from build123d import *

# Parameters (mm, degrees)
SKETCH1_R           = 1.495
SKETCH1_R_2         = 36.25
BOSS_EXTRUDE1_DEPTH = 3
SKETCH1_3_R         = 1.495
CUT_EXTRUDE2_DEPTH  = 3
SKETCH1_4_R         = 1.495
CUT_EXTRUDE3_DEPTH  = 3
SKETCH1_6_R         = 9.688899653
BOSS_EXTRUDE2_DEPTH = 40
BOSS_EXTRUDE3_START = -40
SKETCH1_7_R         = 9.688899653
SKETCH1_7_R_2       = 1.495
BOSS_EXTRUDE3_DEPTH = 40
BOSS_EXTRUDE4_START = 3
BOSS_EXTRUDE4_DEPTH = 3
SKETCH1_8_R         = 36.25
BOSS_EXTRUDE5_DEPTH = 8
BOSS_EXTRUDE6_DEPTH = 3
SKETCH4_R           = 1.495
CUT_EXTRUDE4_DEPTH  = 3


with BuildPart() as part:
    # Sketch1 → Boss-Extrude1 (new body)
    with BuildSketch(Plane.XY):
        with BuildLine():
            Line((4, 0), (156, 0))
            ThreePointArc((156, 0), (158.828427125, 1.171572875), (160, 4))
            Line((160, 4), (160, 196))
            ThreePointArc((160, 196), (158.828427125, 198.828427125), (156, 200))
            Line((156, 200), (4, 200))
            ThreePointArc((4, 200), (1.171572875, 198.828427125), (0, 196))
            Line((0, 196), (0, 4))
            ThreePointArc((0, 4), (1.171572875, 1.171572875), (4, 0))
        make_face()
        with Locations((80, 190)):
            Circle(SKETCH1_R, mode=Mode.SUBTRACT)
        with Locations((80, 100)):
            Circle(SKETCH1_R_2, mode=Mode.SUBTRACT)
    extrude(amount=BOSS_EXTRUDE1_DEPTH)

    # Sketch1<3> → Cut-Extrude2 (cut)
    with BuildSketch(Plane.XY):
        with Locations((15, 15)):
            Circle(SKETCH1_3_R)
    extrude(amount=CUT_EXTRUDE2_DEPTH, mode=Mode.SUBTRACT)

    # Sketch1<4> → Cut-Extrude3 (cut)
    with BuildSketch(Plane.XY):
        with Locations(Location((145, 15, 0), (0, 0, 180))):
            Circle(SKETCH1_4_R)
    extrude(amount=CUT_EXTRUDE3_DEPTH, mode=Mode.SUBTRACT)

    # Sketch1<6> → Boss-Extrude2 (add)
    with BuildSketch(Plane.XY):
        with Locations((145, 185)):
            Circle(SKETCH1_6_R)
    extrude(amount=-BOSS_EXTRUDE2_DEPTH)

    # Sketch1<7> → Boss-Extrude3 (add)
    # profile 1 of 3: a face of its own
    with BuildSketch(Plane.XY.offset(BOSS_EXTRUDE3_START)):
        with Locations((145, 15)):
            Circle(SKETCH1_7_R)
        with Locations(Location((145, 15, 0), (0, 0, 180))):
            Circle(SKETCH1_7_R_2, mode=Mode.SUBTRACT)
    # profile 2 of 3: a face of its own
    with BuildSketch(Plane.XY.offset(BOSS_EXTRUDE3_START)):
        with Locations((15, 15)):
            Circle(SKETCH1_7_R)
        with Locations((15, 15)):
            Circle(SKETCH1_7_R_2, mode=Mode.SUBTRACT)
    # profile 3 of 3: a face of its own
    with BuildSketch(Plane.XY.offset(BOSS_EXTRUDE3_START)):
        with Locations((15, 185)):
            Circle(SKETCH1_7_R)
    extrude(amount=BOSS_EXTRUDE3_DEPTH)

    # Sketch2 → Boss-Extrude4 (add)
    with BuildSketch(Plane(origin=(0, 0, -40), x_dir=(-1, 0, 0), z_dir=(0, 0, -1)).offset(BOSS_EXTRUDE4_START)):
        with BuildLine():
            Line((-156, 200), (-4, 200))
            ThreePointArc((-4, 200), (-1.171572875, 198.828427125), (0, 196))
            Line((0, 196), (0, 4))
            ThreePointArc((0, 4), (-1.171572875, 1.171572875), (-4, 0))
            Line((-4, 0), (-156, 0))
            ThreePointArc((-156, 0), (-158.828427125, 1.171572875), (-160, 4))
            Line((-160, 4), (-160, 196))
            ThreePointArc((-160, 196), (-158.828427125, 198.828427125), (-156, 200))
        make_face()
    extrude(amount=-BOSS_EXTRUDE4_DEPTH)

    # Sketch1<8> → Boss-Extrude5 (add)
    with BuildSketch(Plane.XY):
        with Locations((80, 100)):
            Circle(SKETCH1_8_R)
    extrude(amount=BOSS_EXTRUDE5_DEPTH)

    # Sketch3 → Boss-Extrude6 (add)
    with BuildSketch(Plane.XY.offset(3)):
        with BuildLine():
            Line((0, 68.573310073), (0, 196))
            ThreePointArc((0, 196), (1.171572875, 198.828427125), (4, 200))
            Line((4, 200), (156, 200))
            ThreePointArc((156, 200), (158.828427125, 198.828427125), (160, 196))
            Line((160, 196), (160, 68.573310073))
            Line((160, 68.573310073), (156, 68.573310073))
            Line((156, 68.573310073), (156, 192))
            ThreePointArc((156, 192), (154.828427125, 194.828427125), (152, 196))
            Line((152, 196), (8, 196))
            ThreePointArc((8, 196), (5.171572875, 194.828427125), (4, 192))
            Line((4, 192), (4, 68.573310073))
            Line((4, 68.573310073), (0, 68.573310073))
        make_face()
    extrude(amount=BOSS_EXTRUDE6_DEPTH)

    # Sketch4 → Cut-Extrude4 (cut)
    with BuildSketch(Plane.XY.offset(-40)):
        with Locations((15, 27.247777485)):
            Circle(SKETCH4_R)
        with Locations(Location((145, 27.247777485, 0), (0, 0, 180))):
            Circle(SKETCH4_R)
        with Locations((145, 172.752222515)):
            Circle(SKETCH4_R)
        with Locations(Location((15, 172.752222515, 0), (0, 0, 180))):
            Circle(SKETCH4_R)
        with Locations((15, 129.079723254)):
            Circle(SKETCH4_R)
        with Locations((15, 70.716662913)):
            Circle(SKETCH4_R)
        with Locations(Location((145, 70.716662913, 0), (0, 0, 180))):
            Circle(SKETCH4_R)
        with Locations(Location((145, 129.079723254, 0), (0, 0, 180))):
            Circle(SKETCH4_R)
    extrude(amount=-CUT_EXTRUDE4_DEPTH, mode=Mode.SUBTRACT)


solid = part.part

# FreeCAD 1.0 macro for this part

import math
import FreeCAD as App
import Part
import Sketcher

V = App.Vector
Q = App.Units.Quantity

doc = App.newDocument("Part")
body = doc.addObject("PartDesign::Body", "Body")

sketch1 = body.newObject("Sketcher::SketchObject", "Sketch")
sketch1.AttachmentSupport = (doc.getObject("XY_Plane"), [""])
sketch1.MapMode = "FlatFace"
sketch1.addGeometry([
    Part.LineSegment(V(4, 0, 0), V(156, 0, 0)),
    Part.ArcOfCircle(Part.Circle(V(156, 4, 0), V(0, 0, 1), 4), math.radians(-90), math.radians(0)),
    Part.LineSegment(V(160, 4, 0), V(160, 196, 0)),
    Part.ArcOfCircle(Part.Circle(V(156, 196, 0), V(0, 0, 1), 4), math.radians(0), math.radians(90)),
    Part.LineSegment(V(156, 200, 0), V(4, 200, 0)),
    Part.ArcOfCircle(Part.Circle(V(4, 196, 0), V(0, 0, 1), 4), math.radians(90), math.radians(180)),
    Part.LineSegment(V(0, 196, 0), V(0, 4, 0)),
    Part.ArcOfCircle(Part.Circle(V(4, 4, 0), V(0, 0, 1), 4), math.radians(180), math.radians(270)),
    Part.Circle(V(80, 100, 0), V(0, 0, 1), 36.2),
    Part.Circle(V(80, 190, 0), V(0, 0, 1), 1.5),
], False)
sketch1.addConstraint([
    Sketcher.Constraint("Tangent", 0, 2, 1, 1),
    Sketcher.Constraint("Tangent", 1, 2, 2, 1),
    Sketcher.Constraint("Tangent", 2, 2, 3, 1),
    Sketcher.Constraint("Tangent", 3, 2, 4, 1),
    Sketcher.Constraint("Tangent", 4, 2, 5, 1),
    Sketcher.Constraint("Tangent", 5, 2, 6, 1),
    Sketcher.Constraint("Tangent", 6, 2, 7, 1),
    Sketcher.Constraint("Tangent", 7, 2, 0, 1),
    Sketcher.Constraint("Horizontal", 0),
    Sketcher.Constraint("Vertical", 2),
    Sketcher.Constraint("Horizontal", 4),
    Sketcher.Constraint("Vertical", 6),
    Sketcher.Constraint("Equal", 1, 3),
    Sketcher.Constraint("Equal", 3, 5),
    Sketcher.Constraint("Equal", 5, 7),
    Sketcher.Constraint("PointOnObject", 0, 2, -1),
    Sketcher.Constraint("PointOnObject", 5, 2, -2),
    Sketcher.Constraint("Vertical", 8, 3, 9, 3),
    Sketcher.Constraint("Radius", 1, Q("4 mm")),
    Sketcher.Constraint("Diameter", 8, Q("72.5 mm")),
    Sketcher.Constraint("Diameter", 9, Q("2.99 mm")),
    Sketcher.Constraint("DistanceX", 0, 1, 0, 2, Q("152 mm")),
    Sketcher.Constraint("DistanceY", 2, 1, 2, 2, Q("192 mm")),
    Sketcher.Constraint("DistanceX", -1, 1, 8, 3, Q("80 mm")),
    Sketcher.Constraint("DistanceY", -1, 1, 8, 3, Q("100 mm")),
    Sketcher.Constraint("DistanceY", -1, 1, 9, 3, Q("190 mm")),
])
pad1 = body.newObject("PartDesign::Pad", "Pad")
pad1.Profile = sketch1
pad1.Length = 3

sketch2 = body.newObject("Sketcher::SketchObject", "Sketch001")
sketch2.AttachmentSupport = (doc.getObject("XY_Plane"), [""])
sketch2.MapMode = "FlatFace"
sketch2.addGeometry(Part.Circle(V(15, 15, 0), V(0, 0, 1), 1.5), False)
sketch2.addConstraint([
    Sketcher.Constraint("Diameter", 0, Q("2.99 mm")),
    Sketcher.Constraint("DistanceX", -1, 1, 0, 3, Q("15 mm")),
    Sketcher.Constraint("DistanceY", -1, 1, 0, 3, Q("15 mm")),
])
pocket1 = body.newObject("PartDesign::Pocket", "Pocket")
pocket1.Profile = sketch2
pocket1.Length = 3
pocket1.Reversed = True

sketch3 = body.newObject("Sketcher::SketchObject", "Sketch002")
sketch3.AttachmentSupport = (doc.getObject("XY_Plane"), [""])
sketch3.MapMode = "FlatFace"
sketch3.addGeometry(Part.Circle(V(145, 15, 0), V(0, 0, 1), 1.5), False)
sketch3.addConstraint([
    Sketcher.Constraint("Diameter", 0, Q("2.99 mm")),
    Sketcher.Constraint("DistanceX", -1, 1, 0, 3, Q("145 mm")),
    Sketcher.Constraint("DistanceY", -1, 1, 0, 3, Q("15 mm")),
])
pocket2 = body.newObject("PartDesign::Pocket", "Pocket001")
pocket2.Profile = sketch3
pocket2.Length = 3
pocket2.Reversed = True

sketch4 = body.newObject("Sketcher::SketchObject", "Sketch003")
sketch4.AttachmentSupport = (doc.getObject("XY_Plane"), [""])
sketch4.MapMode = "FlatFace"
sketch4.addGeometry(Part.Circle(V(145, 185, 0), V(0, 0, 1), 10), False)
sketch4.addConstraint([
    Sketcher.Constraint("DistanceX", -1, 1, 0, 3, Q("145 mm")),
    Sketcher.Constraint("DistanceY", -1, 1, 0, 3, Q("185 mm")),
    Sketcher.Constraint("Diameter", 0, Q("19.377799 mm")),
])
pad2 = body.newObject("PartDesign::Pad", "Pad001")
pad2.Profile = sketch4
pad2.Length = 40
pad2.Reversed = True

sketch5 = body.newObject("Sketcher::SketchObject", "Sketch004")
sketch5.AttachmentSupport = (doc.getObject("XY_Plane"), [""])
sketch5.MapMode = "FlatFace"
sketch5.AttachmentOffset = App.Placement(V(0, 0, -40), App.Rotation())
sketch5.addGeometry([
    Part.Circle(V(145, 15, 0), V(0, 0, 1), 9.7),
    Part.Circle(V(145, 15, 0), V(0, 0, 1), 1.5),
    Part.Circle(V(15, 15, 0), V(0, 0, 1), 9.7),
    Part.Circle(V(15, 15, 0), V(0, 0, 1), 1.5),
    Part.Circle(V(15, 185, 0), V(0, 0, 1), 9.7),
], False)
sketch5.addConstraint([
    Sketcher.Constraint("Coincident", 1, 3, 0, 3),
    Sketcher.Constraint("Coincident", 3, 3, 2, 3),
    Sketcher.Constraint("Equal", 0, 2),
    Sketcher.Constraint("Equal", 1, 3),
    Sketcher.Constraint("Equal", 2, 4),
    Sketcher.Constraint("Horizontal", 1, 3, 2, 3),
    Sketcher.Constraint("Vertical", 3, 3, 4, 3),
    Sketcher.Constraint("Diameter", 1, Q("2.99 mm")),
    Sketcher.Constraint("DistanceX", -1, 1, 0, 3, Q("145 mm")),
    Sketcher.Constraint("DistanceY", -1, 1, 0, 3, Q("15 mm")),
    Sketcher.Constraint("DistanceX", -1, 1, 2, 3, Q("15 mm")),
    Sketcher.Constraint("DistanceY", -1, 1, 4, 3, Q("185 mm")),
    Sketcher.Constraint("Diameter", 0, Q("19.377799 mm")),
])
pad3 = body.newObject("PartDesign::Pad", "Pad002")
pad3.Profile = sketch5
pad3.Length = 40

sketch6 = body.newObject("Sketcher::SketchObject", "Sketch005")
sketch6.AttachmentSupport = (doc.getObject("XY_Plane"), [""])
sketch6.MapMode = "FlatFace"
sketch6.AttachmentOffset = App.Placement(V(0, 0, -43), App.Rotation())
sketch6.addGeometry([
    Part.LineSegment(V(4, 200, 0), V(156, 200, 0)),
    Part.ArcOfCircle(Part.Circle(V(156, 196, 0), V(0, 0, 1), 4), math.radians(0), math.radians(90)),
    Part.LineSegment(V(160, 196, 0), V(160, 4, 0)),
    Part.ArcOfCircle(Part.Circle(V(156, 4, 0), V(0, 0, 1), 4), math.radians(-90), math.radians(0)),
    Part.LineSegment(V(156, 0, 0), V(4, 0, 0)),
    Part.ArcOfCircle(Part.Circle(V(4, 4, 0), V(0, 0, 1), 4), math.radians(180), math.radians(270)),
    Part.LineSegment(V(0, 4, 0), V(0, 196, 0)),
    Part.ArcOfCircle(Part.Circle(V(4, 196, 0), V(0, 0, 1), 4), math.radians(90), math.radians(180)),
], False)
sketch6.addConstraint([
    Sketcher.Constraint("Tangent", 0, 2, 1, 2),
    Sketcher.Constraint("Tangent", 1, 1, 2, 1),
    Sketcher.Constraint("Tangent", 2, 2, 3, 2),
    Sketcher.Constraint("Tangent", 3, 1, 4, 1),
    Sketcher.Constraint("Tangent", 4, 2, 5, 2),
    Sketcher.Constraint("Tangent", 5, 1, 6, 1),
    Sketcher.Constraint("Tangent", 6, 2, 7, 2),
    Sketcher.Constraint("Tangent", 7, 1, 0, 1),
    Sketcher.Constraint("Horizontal", 0),
    Sketcher.Constraint("Vertical", 2),
    Sketcher.Constraint("Horizontal", 4),
    Sketcher.Constraint("Vertical", 6),
    Sketcher.Constraint("Equal", 1, 3),
    Sketcher.Constraint("Equal", 3, 5),
    Sketcher.Constraint("Equal", 5, 7),
    Sketcher.Constraint("PointOnObject", 3, 1, -1),
    Sketcher.Constraint("PointOnObject", 5, 1, -2),
    Sketcher.Constraint("Radius", 1, Q("4 mm")),
    Sketcher.Constraint("DistanceX", 0, 1, 0, 2, Q("152 mm")),
    Sketcher.Constraint("DistanceY", 2, 2, 2, 1, Q("192 mm")),
])
pad4 = body.newObject("PartDesign::Pad", "Pad003")
pad4.Profile = sketch6
pad4.Length = 3

sketch7 = body.newObject("Sketcher::SketchObject", "Sketch006")
sketch7.AttachmentSupport = (doc.getObject("XY_Plane"), [""])
sketch7.MapMode = "FlatFace"
sketch7.addGeometry(Part.Circle(V(80, 100, 0), V(0, 0, 1), 36), False)
sketch7.addConstraint([
    Sketcher.Constraint("Diameter", 0, Q("72.5 mm")),
    Sketcher.Constraint("DistanceX", -1, 1, 0, 3, Q("80 mm")),
    Sketcher.Constraint("DistanceY", -1, 1, 0, 3, Q("100 mm")),
])
pad5 = body.newObject("PartDesign::Pad", "Pad004")
pad5.Profile = sketch7
pad5.Length = 8

sketch8 = body.newObject("Sketcher::SketchObject", "Sketch007")
sketch8.AttachmentSupport = (doc.getObject("XY_Plane"), [""])
sketch8.MapMode = "FlatFace"
sketch8.AttachmentOffset = App.Placement(V(0, 0, 3), App.Rotation())
sketch8.addGeometry([
    Part.LineSegment(V(0, 196, 0), V(0, 68.6, 0)),
    Part.LineSegment(V(0, 68.6, 0), V(4, 68.6, 0)),
    Part.LineSegment(V(4, 68.6, 0), V(4, 192, 0)),
    Part.ArcOfCircle(Part.Circle(V(8, 192, 0), V(0, 0, 1), 4), math.radians(90), math.radians(180)),
    Part.LineSegment(V(8, 196, 0), V(152, 196, 0)),
    Part.ArcOfCircle(Part.Circle(V(152, 192, 0), V(0, 0, 1), 4), math.radians(0), math.radians(90)),
    Part.LineSegment(V(156, 192, 0), V(156, 68.6, 0)),
    Part.LineSegment(V(156, 68.6, 0), V(160, 68.6, 0)),
    Part.LineSegment(V(160, 68.6, 0), V(160, 196, 0)),
    Part.ArcOfCircle(Part.Circle(V(156, 196, 0), V(0, 0, 1), 4), math.radians(0), math.radians(90)),
    Part.LineSegment(V(156, 200, 0), V(4, 200, 0)),
    Part.ArcOfCircle(Part.Circle(V(4, 196, 0), V(0, 0, 1), 4), math.radians(90), math.radians(180)),
], False)
sketch8.addConstraint([
    Sketcher.Constraint("Coincident", 0, 2, 1, 1),
    Sketcher.Constraint("Coincident", 1, 2, 2, 1),
    Sketcher.Constraint("Tangent", 2, 2, 3, 2),
    Sketcher.Constraint("Tangent", 3, 1, 4, 1),
    Sketcher.Constraint("Tangent", 4, 2, 5, 2),
    Sketcher.Constraint("Tangent", 5, 1, 6, 1),
    Sketcher.Constraint("Coincident", 6, 2, 7, 1),
    Sketcher.Constraint("Coincident", 7, 2, 8, 1),
    Sketcher.Constraint("Tangent", 8, 2, 9, 1),
    Sketcher.Constraint("Tangent", 9, 2, 10, 1),
    Sketcher.Constraint("Tangent", 10, 2, 11, 1),
    Sketcher.Constraint("Tangent", 11, 2, 0, 1),
    Sketcher.Constraint("Vertical", 0),
    Sketcher.Constraint("Horizontal", 1),
    Sketcher.Constraint("Vertical", 2),
    Sketcher.Constraint("Horizontal", 4),
    Sketcher.Constraint("Vertical", 6),
    Sketcher.Constraint("Horizontal", 7),
    Sketcher.Constraint("Vertical", 8),
    Sketcher.Constraint("Horizontal", 10),
    Sketcher.Constraint("Equal", 3, 5),
    Sketcher.Constraint("Equal", 5, 9),
    Sketcher.Constraint("Equal", 9, 11),
    Sketcher.Constraint("PointOnObject", 0, 2, -2),
    Sketcher.Constraint("Horizontal", 11, 3, 3, 1),
    Sketcher.Constraint("Horizontal", 1, 2, 6, 2),
    Sketcher.Constraint("Vertical", 11, 3, 1, 2),
    Sketcher.Constraint("Vertical", 9, 3, 5, 1),
    Sketcher.Constraint("Radius", 3, Q("4 mm")),
    Sketcher.Constraint("DistanceX", 4, 1, 4, 2, Q("144 mm")),
    Sketcher.Constraint("DistanceY", -1, 1, 3, 3, Q("192 mm")),
    Sketcher.Constraint("DistanceY", 0, 2, 0, 1, Q("127.42669 mm")),
])
pad6 = body.newObject("PartDesign::Pad", "Pad005")
pad6.Profile = sketch8
pad6.Length = 3

sketch9 = body.newObject("Sketcher::SketchObject", "Sketch008")
sketch9.AttachmentSupport = (doc.getObject("XY_Plane"), [""])
sketch9.MapMode = "FlatFace"
sketch9.AttachmentOffset = App.Placement(V(0, 0, -40), App.Rotation())
sketch9.addGeometry([
    Part.Circle(V(15, 27.2, 0), V(0, 0, 1), 1.5),
    Part.Circle(V(145, 27.2, 0), V(0, 0, 1), 1.5),
    Part.Circle(V(145, 172.8, 0), V(0, 0, 1), 1.5),
    Part.Circle(V(15, 172.8, 0), V(0, 0, 1), 1.5),
    Part.Circle(V(15, 129.1, 0), V(0, 0, 1), 1.5),
    Part.Circle(V(15, 70.7, 0), V(0, 0, 1), 1.5),
    Part.Circle(V(145, 70.7, 0), V(0, 0, 1), 1.5),
    Part.Circle(V(145, 129.1, 0), V(0, 0, 1), 1.5),
], False)
sketch9.addConstraint([
    Sketcher.Constraint("Equal", 0, 1),
    Sketcher.Constraint("Equal", 1, 2),
    Sketcher.Constraint("Equal", 2, 3),
    Sketcher.Constraint("Equal", 3, 4),
    Sketcher.Constraint("Equal", 4, 5),
    Sketcher.Constraint("Equal", 5, 6),
    Sketcher.Constraint("Equal", 6, 7),
    Sketcher.Constraint("Horizontal", 0, 3, 1, 3),
    Sketcher.Constraint("Horizontal", 2, 3, 3, 3),
    Sketcher.Constraint("Horizontal", 5, 3, 6, 3),
    Sketcher.Constraint("Horizontal", 4, 3, 7, 3),
    Sketcher.Constraint("Vertical", 1, 3, 2, 3),
    Sketcher.Constraint("Vertical", 0, 3, 3, 3),
    Sketcher.Constraint("Vertical", 3, 3, 4, 3),
    Sketcher.Constraint("Vertical", 4, 3, 5, 3),
    Sketcher.Constraint("Vertical", 2, 3, 6, 3),
    Sketcher.Constraint("Vertical", 6, 3, 7, 3),
    Sketcher.Constraint("Diameter", 0, Q("2.99 mm")),
    Sketcher.Constraint("DistanceX", -1, 1, 0, 3, Q("15 mm")),
    Sketcher.Constraint("DistanceX", -1, 1, 1, 3, Q("145 mm")),
    Sketcher.Constraint("DistanceY", 4, 3, 3, 3, Q("43.672499 mm")),
    Sketcher.Constraint("DistanceY", 5, 3, 4, 3, Q("58.36306 mm")),
    Sketcher.Constraint("DistanceY", -1, 1, 0, 3, Q("27.247777 mm")),
    Sketcher.Constraint("DistanceY", -1, 1, 2, 3, Q("172.752223 mm")),
])
pocket3 = body.newObject("PartDesign::Pocket", "Pocket002")
pocket3.Profile = sketch9
pocket3.Length = 3

doc.recompute()
